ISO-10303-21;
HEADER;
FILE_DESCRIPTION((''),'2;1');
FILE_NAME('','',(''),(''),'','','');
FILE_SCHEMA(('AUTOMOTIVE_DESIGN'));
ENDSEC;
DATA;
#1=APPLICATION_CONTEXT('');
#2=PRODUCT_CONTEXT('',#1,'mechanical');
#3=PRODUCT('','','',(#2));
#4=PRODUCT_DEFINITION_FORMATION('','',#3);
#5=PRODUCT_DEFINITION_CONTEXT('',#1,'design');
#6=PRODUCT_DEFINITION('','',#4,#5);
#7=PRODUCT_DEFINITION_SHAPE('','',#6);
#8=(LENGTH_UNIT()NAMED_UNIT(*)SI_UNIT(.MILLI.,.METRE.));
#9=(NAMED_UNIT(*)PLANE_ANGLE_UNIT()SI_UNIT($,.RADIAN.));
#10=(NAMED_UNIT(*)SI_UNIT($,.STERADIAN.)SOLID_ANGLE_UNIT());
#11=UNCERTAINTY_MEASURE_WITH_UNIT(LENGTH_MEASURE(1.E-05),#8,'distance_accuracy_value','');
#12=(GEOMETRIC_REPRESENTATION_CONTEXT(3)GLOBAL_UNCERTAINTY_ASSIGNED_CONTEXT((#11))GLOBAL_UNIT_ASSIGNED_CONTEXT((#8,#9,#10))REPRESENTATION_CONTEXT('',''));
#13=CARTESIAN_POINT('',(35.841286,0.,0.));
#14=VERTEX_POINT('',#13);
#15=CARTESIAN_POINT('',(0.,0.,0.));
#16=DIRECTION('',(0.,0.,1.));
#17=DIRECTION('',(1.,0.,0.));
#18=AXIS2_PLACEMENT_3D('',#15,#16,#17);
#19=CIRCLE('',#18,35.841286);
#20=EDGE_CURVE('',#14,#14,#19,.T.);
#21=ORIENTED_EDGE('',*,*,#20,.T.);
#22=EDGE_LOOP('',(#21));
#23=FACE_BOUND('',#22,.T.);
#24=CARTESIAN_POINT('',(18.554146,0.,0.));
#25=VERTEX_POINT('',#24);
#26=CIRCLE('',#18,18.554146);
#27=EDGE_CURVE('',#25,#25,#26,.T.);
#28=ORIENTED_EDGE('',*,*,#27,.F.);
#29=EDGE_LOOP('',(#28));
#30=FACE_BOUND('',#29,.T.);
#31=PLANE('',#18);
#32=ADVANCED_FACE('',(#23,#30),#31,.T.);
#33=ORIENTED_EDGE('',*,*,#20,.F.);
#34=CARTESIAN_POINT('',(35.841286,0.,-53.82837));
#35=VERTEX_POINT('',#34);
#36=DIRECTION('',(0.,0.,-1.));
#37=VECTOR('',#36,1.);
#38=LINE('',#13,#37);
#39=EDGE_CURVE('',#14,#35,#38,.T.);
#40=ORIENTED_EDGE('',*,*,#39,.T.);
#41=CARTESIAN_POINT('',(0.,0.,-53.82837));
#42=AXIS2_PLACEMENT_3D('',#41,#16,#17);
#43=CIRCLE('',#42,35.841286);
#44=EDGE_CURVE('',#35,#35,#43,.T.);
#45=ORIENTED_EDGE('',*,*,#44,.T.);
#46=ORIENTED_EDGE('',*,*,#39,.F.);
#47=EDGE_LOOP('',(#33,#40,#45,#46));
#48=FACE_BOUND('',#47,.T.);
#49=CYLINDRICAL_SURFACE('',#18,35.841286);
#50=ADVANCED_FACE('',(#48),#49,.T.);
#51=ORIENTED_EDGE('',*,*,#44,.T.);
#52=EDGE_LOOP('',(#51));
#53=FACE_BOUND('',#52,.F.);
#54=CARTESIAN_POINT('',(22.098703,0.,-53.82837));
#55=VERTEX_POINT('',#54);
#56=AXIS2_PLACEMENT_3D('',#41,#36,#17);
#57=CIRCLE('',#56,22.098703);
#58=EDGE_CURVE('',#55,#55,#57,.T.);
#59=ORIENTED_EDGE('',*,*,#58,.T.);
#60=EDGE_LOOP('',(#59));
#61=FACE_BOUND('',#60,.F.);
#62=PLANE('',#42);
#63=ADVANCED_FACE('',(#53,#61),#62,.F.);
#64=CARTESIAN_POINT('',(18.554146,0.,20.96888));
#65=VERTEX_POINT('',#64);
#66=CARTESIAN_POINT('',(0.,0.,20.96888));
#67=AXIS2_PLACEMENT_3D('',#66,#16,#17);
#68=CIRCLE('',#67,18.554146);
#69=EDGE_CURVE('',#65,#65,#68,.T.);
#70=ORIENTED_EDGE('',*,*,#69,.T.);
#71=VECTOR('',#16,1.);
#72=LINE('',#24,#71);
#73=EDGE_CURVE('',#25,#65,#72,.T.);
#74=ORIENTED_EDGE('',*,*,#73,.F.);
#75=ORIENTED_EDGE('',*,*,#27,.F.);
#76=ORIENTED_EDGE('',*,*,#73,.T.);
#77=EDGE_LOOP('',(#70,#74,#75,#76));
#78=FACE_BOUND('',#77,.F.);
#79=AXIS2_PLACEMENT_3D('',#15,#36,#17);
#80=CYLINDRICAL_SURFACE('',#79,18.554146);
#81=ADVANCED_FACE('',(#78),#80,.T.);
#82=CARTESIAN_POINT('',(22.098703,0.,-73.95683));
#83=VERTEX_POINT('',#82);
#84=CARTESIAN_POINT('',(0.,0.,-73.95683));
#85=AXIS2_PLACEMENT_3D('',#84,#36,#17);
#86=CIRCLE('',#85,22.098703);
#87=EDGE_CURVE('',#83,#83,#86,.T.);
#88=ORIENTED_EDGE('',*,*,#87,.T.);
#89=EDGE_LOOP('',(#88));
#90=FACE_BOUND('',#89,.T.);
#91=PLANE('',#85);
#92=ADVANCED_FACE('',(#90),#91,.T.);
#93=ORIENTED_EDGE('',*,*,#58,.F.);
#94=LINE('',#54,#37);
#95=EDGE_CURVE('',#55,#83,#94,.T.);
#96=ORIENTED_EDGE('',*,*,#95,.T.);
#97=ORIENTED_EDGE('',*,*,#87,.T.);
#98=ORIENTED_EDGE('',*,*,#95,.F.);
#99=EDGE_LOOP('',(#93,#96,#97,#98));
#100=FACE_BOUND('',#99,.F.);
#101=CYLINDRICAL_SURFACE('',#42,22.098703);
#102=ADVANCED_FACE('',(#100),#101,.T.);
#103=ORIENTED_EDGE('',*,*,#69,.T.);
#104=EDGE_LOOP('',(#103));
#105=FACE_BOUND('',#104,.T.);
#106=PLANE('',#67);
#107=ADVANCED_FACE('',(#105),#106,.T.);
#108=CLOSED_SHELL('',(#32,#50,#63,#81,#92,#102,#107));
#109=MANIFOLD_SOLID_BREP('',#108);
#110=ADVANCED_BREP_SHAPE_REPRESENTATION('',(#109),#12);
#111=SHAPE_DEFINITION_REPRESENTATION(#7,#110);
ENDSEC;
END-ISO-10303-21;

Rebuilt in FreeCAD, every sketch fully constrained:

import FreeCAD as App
import Part
import Sketcher
from FreeCAD import Vector
Q = App.Units.Quantity

doc = App.newDocument("Part")
params = doc.addObject("Spreadsheet::Sheet", "Params")
for row, (alias, value) in enumerate([
    ("pad1_length", "20.96888 mm"),
    ("pad2_length", "53.82837 mm"),
    ("pad3_length", "20.12846 mm"),
], start=1):
    params.set(f"A{row}", alias)
    params.set(f"B{row}", "=" + value)
    params.setAlias(f"B{row}", alias)

body = doc.addObject("PartDesign::Body", "Body")

# Sketch on XY plane
sketch1 = body.newObject("Sketcher::SketchObject", "Sketch")
sketch1.AttachmentSupport = (doc.getObject("XY_Plane"), [""])
sketch1.MapMode = "FlatFace"
sketch1.addGeometry(Part.Circle(Vector(0, 0, 0), Vector(0, 0, 1), 19), False)
sketch1.addConstraint([
    Sketcher.Constraint("Coincident", 0, 3, -1, 1),
    Sketcher.Constraint("Diameter", 0, Q("37.108292 mm")),
])
pad1 = body.newObject("PartDesign::Pad", "Pad")
pad1.Profile = sketch1
pad1.setExpression("Length", "Params.pad1_length")

# Sketch on XY plane
sketch2 = body.newObject("Sketcher::SketchObject", "Sketch001")
sketch2.AttachmentSupport = (doc.getObject("XY_Plane"), [""])
sketch2.MapMode = "FlatFace"
sketch2.addGeometry(Part.Circle(Vector(0, 0, 0), Vector(0, 0, 1), 36), False)
sketch2.addConstraint([
    Sketcher.Constraint("Coincident", 0, 3, -1, 1),
    Sketcher.Constraint("Diameter", 0, Q("71.682572 mm")),
])
pad2 = body.newObject("PartDesign::Pad", "Pad001")
pad2.Profile = sketch2
pad2.setExpression("Length", "Params.pad2_length")
pad2.Reversed = True

# Sketch on XY plane
sketch3 = body.newObject("Sketcher::SketchObject", "Sketch002")
sketch3.AttachmentSupport = (doc.getObject("XY_Plane"), [""])
sketch3.MapMode = "FlatFace"
sketch3.AttachmentOffset = App.Placement(Vector(0, 0, -53.82837), App.Rotation())
sketch3.addGeometry(Part.Circle(Vector(0, 0, 0), Vector(0, 0, 1), 22), False)
sketch3.addConstraint([
    Sketcher.Constraint("Coincident", 0, 3, -1, 1),
    Sketcher.Constraint("Diameter", 0, Q("44.197406 mm")),
])
pad3 = body.newObject("PartDesign::Pad", "Pad002")
pad3.Profile = sketch3
pad3.setExpression("Length", "Params.pad3_length")
pad3.Reversed = True

doc.recompute()
